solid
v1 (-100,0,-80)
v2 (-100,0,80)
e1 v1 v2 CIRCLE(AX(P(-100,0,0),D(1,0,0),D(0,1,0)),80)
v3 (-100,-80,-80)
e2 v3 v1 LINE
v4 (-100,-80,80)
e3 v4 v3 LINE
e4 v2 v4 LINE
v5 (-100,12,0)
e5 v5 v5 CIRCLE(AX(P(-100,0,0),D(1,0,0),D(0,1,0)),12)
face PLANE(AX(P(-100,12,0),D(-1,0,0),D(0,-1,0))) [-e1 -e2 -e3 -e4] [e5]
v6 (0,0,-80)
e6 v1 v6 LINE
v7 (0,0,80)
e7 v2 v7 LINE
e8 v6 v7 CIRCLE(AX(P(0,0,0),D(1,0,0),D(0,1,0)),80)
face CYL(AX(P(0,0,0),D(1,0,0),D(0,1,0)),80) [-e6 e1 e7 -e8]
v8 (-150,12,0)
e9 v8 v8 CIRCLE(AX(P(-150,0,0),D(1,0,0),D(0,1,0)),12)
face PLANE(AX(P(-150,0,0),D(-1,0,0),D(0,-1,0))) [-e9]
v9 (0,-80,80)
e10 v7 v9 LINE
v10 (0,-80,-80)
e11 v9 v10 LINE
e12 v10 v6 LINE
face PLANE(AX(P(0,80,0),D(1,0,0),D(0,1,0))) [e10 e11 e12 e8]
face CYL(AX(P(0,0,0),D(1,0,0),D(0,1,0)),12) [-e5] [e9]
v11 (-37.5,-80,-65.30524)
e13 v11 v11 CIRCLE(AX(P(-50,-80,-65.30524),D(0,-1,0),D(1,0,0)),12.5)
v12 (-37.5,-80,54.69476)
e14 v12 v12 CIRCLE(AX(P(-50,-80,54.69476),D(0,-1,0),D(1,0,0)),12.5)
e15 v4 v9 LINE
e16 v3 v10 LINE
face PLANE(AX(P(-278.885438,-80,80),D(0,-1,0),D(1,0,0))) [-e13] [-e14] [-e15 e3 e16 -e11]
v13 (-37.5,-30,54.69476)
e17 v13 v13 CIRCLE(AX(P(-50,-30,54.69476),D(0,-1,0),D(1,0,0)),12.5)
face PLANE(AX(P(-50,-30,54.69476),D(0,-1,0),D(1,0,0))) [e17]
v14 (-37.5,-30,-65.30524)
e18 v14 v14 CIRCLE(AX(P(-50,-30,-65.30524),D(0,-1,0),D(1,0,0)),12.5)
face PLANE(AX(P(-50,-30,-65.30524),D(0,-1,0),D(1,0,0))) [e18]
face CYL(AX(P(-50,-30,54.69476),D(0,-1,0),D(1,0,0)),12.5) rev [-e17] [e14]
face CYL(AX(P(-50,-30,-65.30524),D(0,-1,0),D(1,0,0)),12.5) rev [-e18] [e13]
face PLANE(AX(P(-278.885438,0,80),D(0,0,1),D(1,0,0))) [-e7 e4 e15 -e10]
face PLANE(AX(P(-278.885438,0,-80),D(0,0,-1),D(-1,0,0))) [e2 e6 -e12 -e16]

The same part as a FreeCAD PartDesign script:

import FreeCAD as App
import Part
import Sketcher

V = App.Vector
Q = App.Units.Quantity


def add_polygon(sketch, points):
    """Adds a closed chain of lines whose ends are joined by coincident constraints."""
    first, n = sketch.GeometryCount, len(points)
    for a, b in zip(points, points[1:] + points[:1]):
        sketch.addGeometry(Part.LineSegment(App.Vector(*a, 0), App.Vector(*b, 0)), False)
    for i in range(n):
        sketch.addConstraint(Sketcher.Constraint("Coincident", first + i, 2, first + (i + 1) % n, 1))

doc = App.newDocument("Part")
body = doc.addObject("PartDesign::Body", "Body")

sketch1 = body.newObject("Sketcher::SketchObject", "Sketch")
sketch1.AttachmentSupport = (doc.getObject("XY_Plane"), [""])
sketch1.MapMode = "FlatFace"
add_polygon(sketch1, [(-150, 0), (0, 0), (0, 80), (-100, 80), (-100, 12), (-150, 12)])
sketch1.addConstraint([
    Sketcher.Constraint("Horizontal", 0),
    Sketcher.Constraint("Vertical", 1),
    Sketcher.Constraint("Horizontal", 2),
    Sketcher.Constraint("Vertical", 3),
    Sketcher.Constraint("Horizontal", 4),
    Sketcher.Constraint("Vertical", 5),
    Sketcher.Constraint("Coincident", 0, 2, -1, 1),
    Sketcher.Constraint("DistanceX", 0, 1, 0, 2, Q("150 mm")),
    Sketcher.Constraint("DistanceX", 2, 2, 2, 1, Q("100 mm")),
    Sketcher.Constraint("DistanceY", 1, 1, 1, 2, Q("80 mm")),
    Sketcher.Constraint("DistanceY", 3, 2, 3, 1, Q("68 mm")),
])
revolution = body.newObject("PartDesign::Revolution", "Revolution")
revolution.Profile = sketch1
revolution.ReferenceAxis = (sketch1, ["H_Axis"])
revolution.Angle = 360

sketch2 = body.newObject("Sketcher::SketchObject", "Sketch001")
sketch2.AttachmentSupport = (doc.getObject("YZ_Plane"), [""])
sketch2.MapMode = "FlatFace"
add_polygon(sketch2, [(0, 80), (-80, 80), (-80, -80), (0, -80)])
sketch2.addConstraint([
    Sketcher.Constraint("Horizontal", 0),
    Sketcher.Constraint("Vertical", 1),
    Sketcher.Constraint("Horizontal", 2),
    Sketcher.Constraint("Vertical", 3),
    Sketcher.Constraint("Symmetric", 2, 2, 3, 2, -1, 1),
    Sketcher.Constraint("DistanceX", 0, 2, 0, 1, Q("80 mm")),
    Sketcher.Constraint("DistanceY", 1, 2, 1, 1, Q("160 mm")),
])
pad1 = body.newObject("PartDesign::Pad", "Pad")
pad1.Profile = sketch2
pad1.Length = 100
pad1.Reversed = True

sketch3 = body.newObject("Sketcher::SketchObject", "Sketch002")
sketch3.AttachmentSupport = (doc.getObject("XZ_Plane"), [""])
sketch3.MapMode = "FlatFace"
sketch3.AttachmentOffset = App.Placement(V(0, 0, 80), App.Rotation())
sketch3.addGeometry([
    Part.Circle(V(-50, 55, 0), V(0, 0, 1), 12),
    Part.Circle(V(-50, -65, 0), V(0, 0, 1), 12),
], False)
sketch3.addConstraint([
    Sketcher.Constraint("Equal", 0, 1),
    Sketcher.Constraint("Vertical", 0, 3, 1, 3),
    Sketcher.Constraint("Diameter", 0, Q("25 mm")),
    Sketcher.Constraint("DistanceX", 0, 3, -1, 1, Q("50 mm")),
    Sketcher.Constraint("DistanceY", 1, 3, 0, 3, Q("120 mm")),
    Sketcher.Constraint("DistanceY", -1, 1, 0, 3, Q("54.69476 mm")),
])
pocket1 = body.newObject("PartDesign::Pocket", "Pocket")
pocket1.Profile = sketch3
pocket1.Length = 50

doc.recompute()
